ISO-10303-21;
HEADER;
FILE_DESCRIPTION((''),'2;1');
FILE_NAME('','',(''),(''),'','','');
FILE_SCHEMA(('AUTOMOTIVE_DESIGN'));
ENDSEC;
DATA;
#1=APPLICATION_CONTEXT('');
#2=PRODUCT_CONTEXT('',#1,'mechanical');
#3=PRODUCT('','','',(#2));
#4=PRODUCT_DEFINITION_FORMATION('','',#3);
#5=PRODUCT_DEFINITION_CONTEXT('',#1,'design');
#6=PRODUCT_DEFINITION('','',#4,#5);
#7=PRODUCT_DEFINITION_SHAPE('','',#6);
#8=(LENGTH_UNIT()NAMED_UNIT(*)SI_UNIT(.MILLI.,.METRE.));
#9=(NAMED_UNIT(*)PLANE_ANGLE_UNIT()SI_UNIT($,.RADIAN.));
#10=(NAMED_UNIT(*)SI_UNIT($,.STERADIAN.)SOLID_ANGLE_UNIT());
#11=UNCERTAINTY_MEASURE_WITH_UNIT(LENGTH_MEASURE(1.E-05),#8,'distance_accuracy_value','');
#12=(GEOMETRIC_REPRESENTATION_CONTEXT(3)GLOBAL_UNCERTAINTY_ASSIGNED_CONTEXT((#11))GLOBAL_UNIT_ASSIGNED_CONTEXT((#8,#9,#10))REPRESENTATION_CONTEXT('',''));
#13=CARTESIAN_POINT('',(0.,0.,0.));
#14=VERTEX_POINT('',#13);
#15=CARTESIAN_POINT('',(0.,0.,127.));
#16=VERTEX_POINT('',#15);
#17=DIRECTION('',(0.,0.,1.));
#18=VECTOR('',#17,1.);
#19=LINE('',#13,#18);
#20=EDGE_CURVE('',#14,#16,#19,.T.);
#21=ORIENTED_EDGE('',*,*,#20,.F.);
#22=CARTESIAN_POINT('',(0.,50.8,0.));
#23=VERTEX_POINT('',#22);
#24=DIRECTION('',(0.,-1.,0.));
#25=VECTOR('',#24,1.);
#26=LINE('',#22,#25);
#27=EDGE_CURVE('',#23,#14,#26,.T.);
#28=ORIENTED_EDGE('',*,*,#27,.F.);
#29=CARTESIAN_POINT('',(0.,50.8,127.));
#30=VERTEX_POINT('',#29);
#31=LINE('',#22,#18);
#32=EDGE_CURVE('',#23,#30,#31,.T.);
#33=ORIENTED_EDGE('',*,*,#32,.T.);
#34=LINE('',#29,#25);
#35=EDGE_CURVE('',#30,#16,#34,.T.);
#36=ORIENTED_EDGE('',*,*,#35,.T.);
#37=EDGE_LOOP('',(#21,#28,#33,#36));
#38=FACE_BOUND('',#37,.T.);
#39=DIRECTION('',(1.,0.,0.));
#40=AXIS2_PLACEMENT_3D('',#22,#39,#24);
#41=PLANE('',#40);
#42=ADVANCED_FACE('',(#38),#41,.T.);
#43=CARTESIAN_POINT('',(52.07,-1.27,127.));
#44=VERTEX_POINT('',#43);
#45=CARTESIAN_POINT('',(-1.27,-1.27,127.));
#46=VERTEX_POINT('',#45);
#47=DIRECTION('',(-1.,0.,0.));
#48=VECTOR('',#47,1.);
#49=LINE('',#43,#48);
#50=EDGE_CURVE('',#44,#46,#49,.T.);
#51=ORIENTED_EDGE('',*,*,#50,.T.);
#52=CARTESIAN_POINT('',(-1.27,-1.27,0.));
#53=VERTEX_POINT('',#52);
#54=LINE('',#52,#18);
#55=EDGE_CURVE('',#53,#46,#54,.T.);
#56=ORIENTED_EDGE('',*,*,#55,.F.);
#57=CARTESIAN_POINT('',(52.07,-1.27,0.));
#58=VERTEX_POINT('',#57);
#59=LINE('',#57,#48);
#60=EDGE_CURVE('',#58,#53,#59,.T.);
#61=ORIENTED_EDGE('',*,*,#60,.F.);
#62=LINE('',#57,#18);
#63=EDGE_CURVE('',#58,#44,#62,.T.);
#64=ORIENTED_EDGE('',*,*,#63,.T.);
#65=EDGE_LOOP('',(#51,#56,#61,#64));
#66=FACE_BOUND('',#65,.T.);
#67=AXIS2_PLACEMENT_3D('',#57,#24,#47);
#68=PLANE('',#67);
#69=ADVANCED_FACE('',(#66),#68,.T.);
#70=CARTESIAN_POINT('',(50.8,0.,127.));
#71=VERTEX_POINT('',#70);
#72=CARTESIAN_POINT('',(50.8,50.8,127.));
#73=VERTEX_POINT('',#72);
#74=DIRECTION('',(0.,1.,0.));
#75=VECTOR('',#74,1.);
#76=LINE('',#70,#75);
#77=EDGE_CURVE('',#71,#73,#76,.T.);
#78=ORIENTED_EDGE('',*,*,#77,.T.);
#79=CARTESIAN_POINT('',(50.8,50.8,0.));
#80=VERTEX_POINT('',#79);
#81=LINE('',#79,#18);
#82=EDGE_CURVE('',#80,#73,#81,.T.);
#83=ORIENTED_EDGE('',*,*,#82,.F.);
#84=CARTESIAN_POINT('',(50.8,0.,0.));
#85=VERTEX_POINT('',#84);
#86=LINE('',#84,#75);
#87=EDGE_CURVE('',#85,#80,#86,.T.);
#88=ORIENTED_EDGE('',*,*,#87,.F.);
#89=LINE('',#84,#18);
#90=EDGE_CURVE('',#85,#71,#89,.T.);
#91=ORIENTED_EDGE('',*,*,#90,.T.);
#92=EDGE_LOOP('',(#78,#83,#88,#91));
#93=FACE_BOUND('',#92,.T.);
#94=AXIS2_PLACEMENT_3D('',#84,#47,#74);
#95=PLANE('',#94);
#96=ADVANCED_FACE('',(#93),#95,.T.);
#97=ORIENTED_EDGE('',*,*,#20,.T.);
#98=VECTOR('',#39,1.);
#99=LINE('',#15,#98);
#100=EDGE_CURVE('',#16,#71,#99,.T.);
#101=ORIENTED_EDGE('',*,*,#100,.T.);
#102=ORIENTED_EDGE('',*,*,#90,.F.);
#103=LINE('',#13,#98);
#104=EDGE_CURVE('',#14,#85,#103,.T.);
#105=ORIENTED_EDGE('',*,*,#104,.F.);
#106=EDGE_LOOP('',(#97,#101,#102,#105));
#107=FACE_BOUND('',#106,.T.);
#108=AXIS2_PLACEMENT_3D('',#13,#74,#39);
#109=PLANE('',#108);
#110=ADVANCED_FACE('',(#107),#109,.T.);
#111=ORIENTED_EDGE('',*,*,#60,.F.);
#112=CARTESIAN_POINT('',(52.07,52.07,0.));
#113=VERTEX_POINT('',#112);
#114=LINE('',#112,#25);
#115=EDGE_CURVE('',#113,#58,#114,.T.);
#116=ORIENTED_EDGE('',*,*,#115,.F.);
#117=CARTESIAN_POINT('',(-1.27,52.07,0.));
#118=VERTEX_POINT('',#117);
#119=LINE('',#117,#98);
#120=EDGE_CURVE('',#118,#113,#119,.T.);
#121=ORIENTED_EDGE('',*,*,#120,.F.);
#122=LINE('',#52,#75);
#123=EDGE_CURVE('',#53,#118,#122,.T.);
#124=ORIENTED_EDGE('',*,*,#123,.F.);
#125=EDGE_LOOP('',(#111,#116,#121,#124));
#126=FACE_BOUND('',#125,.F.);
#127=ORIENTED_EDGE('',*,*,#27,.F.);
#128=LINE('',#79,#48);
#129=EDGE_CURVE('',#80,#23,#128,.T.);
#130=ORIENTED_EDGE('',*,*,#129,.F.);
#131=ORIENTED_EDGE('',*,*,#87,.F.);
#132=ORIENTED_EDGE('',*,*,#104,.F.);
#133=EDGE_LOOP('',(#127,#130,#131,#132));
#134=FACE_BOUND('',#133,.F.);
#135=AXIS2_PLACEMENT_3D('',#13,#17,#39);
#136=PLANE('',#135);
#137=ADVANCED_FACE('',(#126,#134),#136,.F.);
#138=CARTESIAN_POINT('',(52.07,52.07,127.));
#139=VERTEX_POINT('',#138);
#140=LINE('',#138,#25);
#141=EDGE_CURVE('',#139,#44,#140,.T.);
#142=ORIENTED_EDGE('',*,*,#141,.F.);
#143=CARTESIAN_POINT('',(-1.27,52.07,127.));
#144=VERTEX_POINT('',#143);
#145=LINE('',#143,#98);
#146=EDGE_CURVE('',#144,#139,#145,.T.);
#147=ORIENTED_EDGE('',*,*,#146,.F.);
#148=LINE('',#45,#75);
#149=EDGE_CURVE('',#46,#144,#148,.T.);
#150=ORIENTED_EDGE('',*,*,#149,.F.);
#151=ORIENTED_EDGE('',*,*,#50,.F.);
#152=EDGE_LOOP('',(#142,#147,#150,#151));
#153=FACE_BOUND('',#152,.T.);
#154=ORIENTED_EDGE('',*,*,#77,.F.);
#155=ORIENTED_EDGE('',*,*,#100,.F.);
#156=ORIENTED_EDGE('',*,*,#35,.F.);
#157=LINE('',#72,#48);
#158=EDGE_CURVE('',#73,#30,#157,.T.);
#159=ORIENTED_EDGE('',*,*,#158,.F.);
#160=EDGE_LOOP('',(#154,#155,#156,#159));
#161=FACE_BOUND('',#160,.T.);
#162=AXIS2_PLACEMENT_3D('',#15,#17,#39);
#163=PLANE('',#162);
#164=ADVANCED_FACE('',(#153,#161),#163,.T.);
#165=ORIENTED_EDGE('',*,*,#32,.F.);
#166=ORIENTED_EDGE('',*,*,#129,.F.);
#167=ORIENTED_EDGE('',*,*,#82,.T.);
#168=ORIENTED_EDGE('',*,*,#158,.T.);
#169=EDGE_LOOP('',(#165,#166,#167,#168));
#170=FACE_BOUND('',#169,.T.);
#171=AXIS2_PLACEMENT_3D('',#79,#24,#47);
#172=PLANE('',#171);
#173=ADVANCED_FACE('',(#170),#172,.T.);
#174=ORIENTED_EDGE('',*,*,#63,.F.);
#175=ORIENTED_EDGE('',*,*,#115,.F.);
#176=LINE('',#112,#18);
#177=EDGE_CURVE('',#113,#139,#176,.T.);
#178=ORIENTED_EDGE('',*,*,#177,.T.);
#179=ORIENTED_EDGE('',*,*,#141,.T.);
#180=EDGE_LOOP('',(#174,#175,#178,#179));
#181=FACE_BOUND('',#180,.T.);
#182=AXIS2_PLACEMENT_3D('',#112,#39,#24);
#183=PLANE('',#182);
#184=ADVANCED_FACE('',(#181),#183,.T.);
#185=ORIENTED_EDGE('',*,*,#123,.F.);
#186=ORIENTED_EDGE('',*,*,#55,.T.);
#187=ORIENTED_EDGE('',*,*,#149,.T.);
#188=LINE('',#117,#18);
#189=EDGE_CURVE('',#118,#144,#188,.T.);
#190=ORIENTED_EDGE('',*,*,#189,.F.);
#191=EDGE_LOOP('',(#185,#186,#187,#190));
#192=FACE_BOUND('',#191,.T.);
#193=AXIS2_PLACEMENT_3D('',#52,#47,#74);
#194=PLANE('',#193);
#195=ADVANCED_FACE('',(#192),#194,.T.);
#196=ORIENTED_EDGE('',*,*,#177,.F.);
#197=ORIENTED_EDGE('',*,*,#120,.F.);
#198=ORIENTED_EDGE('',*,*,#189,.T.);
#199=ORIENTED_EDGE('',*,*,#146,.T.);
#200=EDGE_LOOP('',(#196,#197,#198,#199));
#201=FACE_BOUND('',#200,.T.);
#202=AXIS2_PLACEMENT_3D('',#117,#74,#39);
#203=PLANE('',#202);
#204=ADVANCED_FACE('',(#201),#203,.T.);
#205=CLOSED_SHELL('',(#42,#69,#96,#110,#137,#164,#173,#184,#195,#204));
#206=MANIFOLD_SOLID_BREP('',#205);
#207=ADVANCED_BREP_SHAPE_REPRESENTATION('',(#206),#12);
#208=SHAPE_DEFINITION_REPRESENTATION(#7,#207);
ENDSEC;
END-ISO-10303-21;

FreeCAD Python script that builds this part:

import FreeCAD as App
import Part
import Sketcher
Q = App.Units.Quantity


def add_polygon(sketch, points):
    """Adds a closed chain of lines whose ends are joined by coincident constraints."""
    first, n = sketch.GeometryCount, len(points)
    for a, b in zip(points, points[1:] + points[:1]):
        sketch.addGeometry(Part.LineSegment(App.Vector(*a, 0), App.Vector(*b, 0)), False)
    for i in range(n):
        sketch.addConstraint(Sketcher.Constraint("Coincident", first + i, 2, first + (i + 1) % n, 1))

doc = App.newDocument("Part")
body = doc.addObject("PartDesign::Body", "Body")

# Sketch on XY plane
sketch1 = doc.addObject("Sketcher::SketchObject", "Sketch")
body.addObject(sketch1)
sketch1.AttachmentSupport = (doc.XY_Plane, [""])
sketch1.MapMode = "FlatFace"
add_polygon(sketch1, [(52, 52), (-1, 52), (-1, -1), (52, -1)])  # lines 0-3
add_polygon(sketch1, [(51, 0), (0, 0), (0, 51), (51, 51)])  # lines 4-7
sketch1.addConstraint([
    Sketcher.Constraint("Horizontal", 0),
    Sketcher.Constraint("Vertical", 1),
    Sketcher.Constraint("Horizontal", 2),
    Sketcher.Constraint("Vertical", 3),
    Sketcher.Constraint("Horizontal", 4),
    Sketcher.Constraint("Vertical", 5),
    Sketcher.Constraint("Horizontal", 6),
    Sketcher.Constraint("Vertical", 7),
    Sketcher.Constraint("Coincident", 4, 2, -1, 1),
    Sketcher.Constraint("Equal", 2, 1),
    Sketcher.Constraint("Equal", 6, 5),
    Sketcher.Constraint("DistanceX", 4, 2, 4, 1, Q("2 in")),
    Sketcher.Constraint("DistanceX", 0, 2, -1, 1, Q("0.05 in")),
    Sketcher.Constraint("DistanceY", 1, 2, -1, 1, Q("0.05 in")),
    Sketcher.Constraint("DistanceY", 5, 2, 0, 2, Q("0.05 in")),
])
pad1 = doc.addObject("PartDesign::Pad", "Pad")
body.addObject(pad1)
pad1.Profile = sketch1
pad1.Length = Q("5 in")

doc.recompute()
